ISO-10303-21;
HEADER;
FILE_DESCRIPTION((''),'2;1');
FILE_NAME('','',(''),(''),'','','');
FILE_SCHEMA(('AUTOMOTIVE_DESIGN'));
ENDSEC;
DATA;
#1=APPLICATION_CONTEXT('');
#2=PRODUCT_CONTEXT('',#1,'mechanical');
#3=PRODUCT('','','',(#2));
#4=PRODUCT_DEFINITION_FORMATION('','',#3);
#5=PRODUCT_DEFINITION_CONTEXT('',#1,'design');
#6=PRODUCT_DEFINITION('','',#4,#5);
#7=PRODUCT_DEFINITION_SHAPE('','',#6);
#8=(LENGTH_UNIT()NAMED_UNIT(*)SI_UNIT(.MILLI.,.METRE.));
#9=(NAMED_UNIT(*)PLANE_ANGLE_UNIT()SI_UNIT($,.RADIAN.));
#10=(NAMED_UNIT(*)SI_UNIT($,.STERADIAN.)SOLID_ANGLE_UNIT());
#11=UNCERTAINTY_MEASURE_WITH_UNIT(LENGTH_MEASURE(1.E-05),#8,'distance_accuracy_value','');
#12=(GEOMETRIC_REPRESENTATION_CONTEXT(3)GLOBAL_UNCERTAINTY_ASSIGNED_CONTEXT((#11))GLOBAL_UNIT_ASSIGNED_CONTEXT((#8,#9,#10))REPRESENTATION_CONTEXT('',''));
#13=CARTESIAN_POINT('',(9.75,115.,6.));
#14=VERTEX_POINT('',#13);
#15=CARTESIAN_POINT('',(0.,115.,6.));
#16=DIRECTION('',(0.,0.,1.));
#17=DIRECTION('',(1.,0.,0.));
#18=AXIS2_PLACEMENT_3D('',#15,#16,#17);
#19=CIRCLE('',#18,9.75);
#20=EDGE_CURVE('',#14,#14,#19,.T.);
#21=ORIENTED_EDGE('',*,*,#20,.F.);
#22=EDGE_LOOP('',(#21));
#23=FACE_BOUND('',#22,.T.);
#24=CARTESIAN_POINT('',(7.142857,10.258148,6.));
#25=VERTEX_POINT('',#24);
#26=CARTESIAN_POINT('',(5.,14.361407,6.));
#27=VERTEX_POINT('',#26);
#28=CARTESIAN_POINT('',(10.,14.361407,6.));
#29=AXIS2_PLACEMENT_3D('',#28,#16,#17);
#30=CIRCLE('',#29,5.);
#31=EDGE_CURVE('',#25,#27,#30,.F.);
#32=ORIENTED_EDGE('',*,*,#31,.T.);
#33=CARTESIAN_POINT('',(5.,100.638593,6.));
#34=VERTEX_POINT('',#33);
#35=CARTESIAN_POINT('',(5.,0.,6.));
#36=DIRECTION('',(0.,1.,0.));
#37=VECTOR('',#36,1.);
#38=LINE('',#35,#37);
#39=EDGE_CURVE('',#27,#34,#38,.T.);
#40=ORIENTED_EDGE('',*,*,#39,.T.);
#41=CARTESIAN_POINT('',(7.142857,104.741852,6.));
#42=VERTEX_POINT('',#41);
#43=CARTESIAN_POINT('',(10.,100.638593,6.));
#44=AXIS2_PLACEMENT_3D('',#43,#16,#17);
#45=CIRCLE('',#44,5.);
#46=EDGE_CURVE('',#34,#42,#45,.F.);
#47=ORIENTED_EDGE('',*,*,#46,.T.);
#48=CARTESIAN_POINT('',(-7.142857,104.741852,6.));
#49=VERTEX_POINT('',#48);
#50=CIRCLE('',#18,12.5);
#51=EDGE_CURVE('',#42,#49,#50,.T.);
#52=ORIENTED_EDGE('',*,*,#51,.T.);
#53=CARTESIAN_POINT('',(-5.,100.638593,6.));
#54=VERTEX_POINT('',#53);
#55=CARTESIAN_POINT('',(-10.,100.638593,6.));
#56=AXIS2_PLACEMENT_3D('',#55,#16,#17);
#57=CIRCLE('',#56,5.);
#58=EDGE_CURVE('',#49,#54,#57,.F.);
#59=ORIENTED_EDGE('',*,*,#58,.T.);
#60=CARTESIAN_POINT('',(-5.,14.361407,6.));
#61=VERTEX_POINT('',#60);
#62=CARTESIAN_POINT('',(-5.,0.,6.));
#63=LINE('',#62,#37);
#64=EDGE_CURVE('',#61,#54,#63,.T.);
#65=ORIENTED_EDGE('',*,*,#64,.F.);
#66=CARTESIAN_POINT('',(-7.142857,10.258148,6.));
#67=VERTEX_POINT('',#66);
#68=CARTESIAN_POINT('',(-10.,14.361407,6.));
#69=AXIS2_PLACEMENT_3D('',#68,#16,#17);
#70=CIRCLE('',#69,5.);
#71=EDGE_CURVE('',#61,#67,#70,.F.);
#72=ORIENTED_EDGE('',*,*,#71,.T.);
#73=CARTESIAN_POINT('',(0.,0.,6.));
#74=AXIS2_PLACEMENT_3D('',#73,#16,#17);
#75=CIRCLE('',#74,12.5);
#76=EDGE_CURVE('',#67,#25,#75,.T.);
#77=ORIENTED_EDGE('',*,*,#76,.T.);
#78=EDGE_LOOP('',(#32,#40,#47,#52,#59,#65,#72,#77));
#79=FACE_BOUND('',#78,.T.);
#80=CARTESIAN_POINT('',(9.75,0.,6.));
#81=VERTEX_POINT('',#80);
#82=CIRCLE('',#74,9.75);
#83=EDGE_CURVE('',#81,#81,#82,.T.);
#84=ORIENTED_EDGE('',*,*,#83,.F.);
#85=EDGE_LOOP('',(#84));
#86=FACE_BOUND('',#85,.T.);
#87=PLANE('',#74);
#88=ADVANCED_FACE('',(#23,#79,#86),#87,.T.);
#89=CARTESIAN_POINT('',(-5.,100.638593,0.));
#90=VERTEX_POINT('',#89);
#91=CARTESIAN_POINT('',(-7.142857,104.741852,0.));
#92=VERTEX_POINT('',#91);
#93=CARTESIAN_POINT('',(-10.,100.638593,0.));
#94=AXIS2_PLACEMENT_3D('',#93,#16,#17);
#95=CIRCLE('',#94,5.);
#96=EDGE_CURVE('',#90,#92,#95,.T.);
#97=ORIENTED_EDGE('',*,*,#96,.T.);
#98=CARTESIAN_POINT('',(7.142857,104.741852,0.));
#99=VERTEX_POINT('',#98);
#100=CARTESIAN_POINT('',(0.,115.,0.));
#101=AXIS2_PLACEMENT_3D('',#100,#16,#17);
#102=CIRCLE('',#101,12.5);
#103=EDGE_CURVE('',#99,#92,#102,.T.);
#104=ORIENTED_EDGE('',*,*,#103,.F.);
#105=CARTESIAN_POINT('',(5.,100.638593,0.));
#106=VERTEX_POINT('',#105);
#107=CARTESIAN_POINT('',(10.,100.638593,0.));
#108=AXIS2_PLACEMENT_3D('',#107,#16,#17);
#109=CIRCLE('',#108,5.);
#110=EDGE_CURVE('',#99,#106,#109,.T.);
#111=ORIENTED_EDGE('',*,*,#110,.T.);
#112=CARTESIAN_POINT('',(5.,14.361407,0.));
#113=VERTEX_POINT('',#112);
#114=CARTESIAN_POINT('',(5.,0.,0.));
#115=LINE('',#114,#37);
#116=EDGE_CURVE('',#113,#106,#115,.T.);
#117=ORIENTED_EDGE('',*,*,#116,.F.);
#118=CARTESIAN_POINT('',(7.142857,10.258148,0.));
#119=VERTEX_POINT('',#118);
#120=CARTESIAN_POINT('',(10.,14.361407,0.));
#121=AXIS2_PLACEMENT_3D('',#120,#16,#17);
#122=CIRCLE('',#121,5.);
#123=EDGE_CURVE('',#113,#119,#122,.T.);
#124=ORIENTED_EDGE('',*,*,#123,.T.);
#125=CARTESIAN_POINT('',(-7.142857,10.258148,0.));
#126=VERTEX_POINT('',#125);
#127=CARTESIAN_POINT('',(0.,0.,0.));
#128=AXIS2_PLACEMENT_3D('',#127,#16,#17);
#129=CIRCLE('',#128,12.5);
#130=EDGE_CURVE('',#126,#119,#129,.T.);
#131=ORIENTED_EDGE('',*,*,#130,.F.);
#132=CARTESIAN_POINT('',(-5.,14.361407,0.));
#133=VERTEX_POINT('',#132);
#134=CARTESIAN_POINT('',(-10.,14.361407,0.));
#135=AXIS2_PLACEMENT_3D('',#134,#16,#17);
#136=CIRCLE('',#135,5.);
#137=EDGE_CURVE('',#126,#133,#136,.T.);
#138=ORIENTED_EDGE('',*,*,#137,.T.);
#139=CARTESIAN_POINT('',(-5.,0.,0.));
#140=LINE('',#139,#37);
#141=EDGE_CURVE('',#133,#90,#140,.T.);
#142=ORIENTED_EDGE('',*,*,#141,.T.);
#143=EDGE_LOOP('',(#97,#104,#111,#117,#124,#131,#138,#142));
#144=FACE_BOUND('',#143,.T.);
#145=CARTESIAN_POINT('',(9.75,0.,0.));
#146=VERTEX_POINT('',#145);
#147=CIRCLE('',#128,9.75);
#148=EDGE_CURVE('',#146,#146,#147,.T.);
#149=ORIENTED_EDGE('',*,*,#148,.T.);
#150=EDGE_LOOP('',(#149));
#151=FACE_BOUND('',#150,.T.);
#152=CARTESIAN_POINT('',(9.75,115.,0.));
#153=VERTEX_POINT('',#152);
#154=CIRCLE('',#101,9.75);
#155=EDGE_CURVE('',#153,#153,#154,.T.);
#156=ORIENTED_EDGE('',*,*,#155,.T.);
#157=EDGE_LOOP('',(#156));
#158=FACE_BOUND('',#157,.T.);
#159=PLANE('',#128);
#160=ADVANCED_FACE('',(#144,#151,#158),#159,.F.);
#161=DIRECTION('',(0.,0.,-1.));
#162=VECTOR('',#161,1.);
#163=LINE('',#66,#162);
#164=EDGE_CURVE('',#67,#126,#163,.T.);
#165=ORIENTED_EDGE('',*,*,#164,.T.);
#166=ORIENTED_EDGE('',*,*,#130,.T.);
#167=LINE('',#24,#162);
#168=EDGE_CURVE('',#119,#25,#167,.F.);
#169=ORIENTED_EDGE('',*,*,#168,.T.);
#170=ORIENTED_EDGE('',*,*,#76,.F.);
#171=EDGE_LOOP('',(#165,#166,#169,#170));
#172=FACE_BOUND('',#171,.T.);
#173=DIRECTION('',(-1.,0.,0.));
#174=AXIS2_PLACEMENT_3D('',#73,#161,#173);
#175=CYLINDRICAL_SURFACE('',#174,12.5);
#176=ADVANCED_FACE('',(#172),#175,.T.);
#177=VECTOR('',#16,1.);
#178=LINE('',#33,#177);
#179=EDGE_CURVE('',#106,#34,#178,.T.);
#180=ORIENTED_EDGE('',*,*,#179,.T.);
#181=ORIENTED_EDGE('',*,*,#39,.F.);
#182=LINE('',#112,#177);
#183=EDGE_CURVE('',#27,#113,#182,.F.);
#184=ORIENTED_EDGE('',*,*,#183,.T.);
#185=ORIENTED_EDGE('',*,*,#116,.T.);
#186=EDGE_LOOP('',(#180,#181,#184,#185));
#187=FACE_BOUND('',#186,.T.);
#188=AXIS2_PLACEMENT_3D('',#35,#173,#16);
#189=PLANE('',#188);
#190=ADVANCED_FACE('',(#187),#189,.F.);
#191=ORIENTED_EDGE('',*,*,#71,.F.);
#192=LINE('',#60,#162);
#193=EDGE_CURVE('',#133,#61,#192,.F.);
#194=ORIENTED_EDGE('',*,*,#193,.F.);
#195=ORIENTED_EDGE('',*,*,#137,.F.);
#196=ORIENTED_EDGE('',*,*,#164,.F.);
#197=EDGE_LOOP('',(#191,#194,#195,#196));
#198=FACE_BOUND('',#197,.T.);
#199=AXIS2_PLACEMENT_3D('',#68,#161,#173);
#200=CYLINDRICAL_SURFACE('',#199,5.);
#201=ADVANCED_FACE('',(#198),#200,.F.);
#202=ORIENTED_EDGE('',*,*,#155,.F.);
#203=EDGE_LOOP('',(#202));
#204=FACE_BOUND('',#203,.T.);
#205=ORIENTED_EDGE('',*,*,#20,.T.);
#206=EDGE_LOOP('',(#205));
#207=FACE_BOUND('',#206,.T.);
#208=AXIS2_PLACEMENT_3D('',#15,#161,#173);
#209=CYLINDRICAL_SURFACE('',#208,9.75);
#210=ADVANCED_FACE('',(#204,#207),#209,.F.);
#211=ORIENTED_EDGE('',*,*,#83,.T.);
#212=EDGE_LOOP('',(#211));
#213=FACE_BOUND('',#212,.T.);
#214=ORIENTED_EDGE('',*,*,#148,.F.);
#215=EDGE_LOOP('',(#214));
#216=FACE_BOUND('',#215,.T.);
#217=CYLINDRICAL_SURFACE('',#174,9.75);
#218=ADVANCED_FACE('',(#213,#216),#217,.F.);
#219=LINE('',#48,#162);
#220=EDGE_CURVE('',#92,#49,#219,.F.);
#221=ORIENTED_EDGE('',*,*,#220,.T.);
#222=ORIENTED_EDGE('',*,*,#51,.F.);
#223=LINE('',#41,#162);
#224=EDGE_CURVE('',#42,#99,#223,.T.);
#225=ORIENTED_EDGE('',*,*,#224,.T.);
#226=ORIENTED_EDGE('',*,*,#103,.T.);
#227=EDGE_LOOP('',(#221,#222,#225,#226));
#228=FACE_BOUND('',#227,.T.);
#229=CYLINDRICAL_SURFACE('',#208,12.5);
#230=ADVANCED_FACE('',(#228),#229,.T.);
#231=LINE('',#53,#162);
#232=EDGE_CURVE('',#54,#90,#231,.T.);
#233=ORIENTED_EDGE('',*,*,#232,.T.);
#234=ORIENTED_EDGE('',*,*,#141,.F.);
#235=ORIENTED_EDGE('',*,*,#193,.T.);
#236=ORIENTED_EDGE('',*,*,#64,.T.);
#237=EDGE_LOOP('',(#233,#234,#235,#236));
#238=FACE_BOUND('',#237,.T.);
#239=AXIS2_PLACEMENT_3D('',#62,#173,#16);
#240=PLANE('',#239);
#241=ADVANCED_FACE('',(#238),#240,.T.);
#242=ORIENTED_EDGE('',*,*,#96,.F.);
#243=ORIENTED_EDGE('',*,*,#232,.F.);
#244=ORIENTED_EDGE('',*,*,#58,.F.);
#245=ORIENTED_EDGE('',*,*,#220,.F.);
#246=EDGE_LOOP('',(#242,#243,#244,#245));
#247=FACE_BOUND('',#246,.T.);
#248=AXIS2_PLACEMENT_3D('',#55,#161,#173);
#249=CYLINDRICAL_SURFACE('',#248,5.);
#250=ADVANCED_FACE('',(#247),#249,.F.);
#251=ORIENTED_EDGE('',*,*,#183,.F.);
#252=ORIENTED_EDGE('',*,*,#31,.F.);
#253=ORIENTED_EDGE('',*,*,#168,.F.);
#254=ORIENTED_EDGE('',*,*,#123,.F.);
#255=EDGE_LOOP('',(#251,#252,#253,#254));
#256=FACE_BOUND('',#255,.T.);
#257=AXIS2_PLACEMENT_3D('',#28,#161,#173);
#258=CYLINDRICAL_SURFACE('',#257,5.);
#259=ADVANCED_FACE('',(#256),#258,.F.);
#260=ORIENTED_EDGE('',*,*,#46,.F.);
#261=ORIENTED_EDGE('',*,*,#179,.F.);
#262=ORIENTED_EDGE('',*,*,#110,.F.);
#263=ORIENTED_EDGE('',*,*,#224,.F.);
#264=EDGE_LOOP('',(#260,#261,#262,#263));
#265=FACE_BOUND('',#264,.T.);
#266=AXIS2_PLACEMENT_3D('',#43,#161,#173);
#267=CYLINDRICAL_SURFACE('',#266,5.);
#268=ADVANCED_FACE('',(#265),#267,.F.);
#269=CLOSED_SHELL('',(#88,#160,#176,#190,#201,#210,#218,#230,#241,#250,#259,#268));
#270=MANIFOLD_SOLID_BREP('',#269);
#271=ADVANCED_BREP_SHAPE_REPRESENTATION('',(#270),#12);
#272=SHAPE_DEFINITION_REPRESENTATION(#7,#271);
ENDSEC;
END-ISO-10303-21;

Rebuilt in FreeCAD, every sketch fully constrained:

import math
import FreeCAD as App
import Part
import Sketcher
from FreeCAD import Vector
Q = App.Units.Quantity


def edges_at(feature, points):
    """Names of the edges that pass closest to the given points."""
    edges = feature.Shape.Edges
    near = lambda p: min(range(len(edges)), key=lambda i: edges[i].distToShape(Part.Vertex(*p))[0])
    return sorted({f"Edge{near(p) + 1}" for p in points})

doc = App.newDocument("Part")
body = doc.addObject("PartDesign::Body", "Body")

# Sketch on XY plane
sketch1 = body.newObject("Sketcher::SketchObject", "Sketch")
sketch1.AttachmentSupport = (doc.getObject("XY_Plane"), [""])
sketch1.MapMode = "FlatFace"
sketch1.addGeometry([
    Part.LineSegment(Vector(-5, 103.543561, 0), Vector(-5, 11.456439, 0)),  # 0
    Part.ArcOfCircle(Part.Circle(Vector(0, 0, 0), Vector(0, 0, 1), 12.5), math.radians(113.578178), math.radians(360)),  # 1
    Part.ArcOfCircle(Part.Circle(Vector(0, 0, 0), Vector(0, 0, 1), 12.5), math.radians(0), math.radians(66.421822)),  # 2
    Part.LineSegment(Vector(5, 11.456439, 0), Vector(5, 103.543561, 0)),  # 3
    Part.ArcOfCircle(Part.Circle(Vector(0, 115, 0), Vector(0, 0, 1), 12.5), math.radians(-66.421822), math.radians(0)),  # 4
    Part.ArcOfCircle(Part.Circle(Vector(0, 115, 0), Vector(0, 0, 1), 12.5), math.radians(0), math.radians(246.421822)),  # 5
    Part.ArcOfCircle(Part.Circle(Vector(0, 0, 0), Vector(0, 0, 1), 9.75), math.radians(59.148114), math.radians(120.851886)),  # 6
    Part.ArcOfCircle(Part.Circle(Vector(0, 0, 0), Vector(0, 0, 1), 9.75), math.radians(0), math.radians(59.148114)),  # 7
    Part.ArcOfCircle(Part.Circle(Vector(0, 0, 0), Vector(0, 0, 1), 9.75), math.radians(120.851886), math.radians(360)),  # 8
    Part.ArcOfCircle(Part.Circle(Vector(0, 115, 0), Vector(0, 0, 1), 9.75), math.radians(-120.851886), math.radians(-59.148114)),  # 9
    Part.ArcOfCircle(Part.Circle(Vector(0, 115, 0), Vector(0, 0, 1), 9.75), math.radians(0), math.radians(239.148114)),  # 10
    Part.ArcOfCircle(Part.Circle(Vector(0, 115, 0), Vector(0, 0, 1), 9.75), math.radians(-59.148114), math.radians(0)),  # 11
], False)
sketch1.addConstraint([
    Sketcher.Constraint("Coincident", 0, 2, 1, 1),
    Sketcher.Constraint("Tangent", 1, 2, 2, 1),
    Sketcher.Constraint("Coincident", 2, 2, 3, 1),
    Sketcher.Constraint("Coincident", 3, 2, 4, 1),
    Sketcher.Constraint("Tangent", 4, 2, 5, 1),
    Sketcher.Constraint("Coincident", 5, 2, 0, 1),
    Sketcher.Constraint("Tangent", 6, 1, 7, 2),
    Sketcher.Constraint("Tangent", 7, 1, 8, 2),
    Sketcher.Constraint("Tangent", 8, 1, 6, 2),
    Sketcher.Constraint("Tangent", 9, 1, 10, 2),
    Sketcher.Constraint("Tangent", 10, 1, 11, 2),
    Sketcher.Constraint("Tangent", 11, 1, 9, 2),
    Sketcher.Constraint("Vertical", 0),
    Sketcher.Constraint("Vertical", 3),
    Sketcher.Constraint("Coincident", 1, 3, -1, 1),
    Sketcher.Constraint("Coincident", 6, 3, -1, 1),
    Sketcher.Constraint("Coincident", 9, 3, 4, 3),
    Sketcher.Constraint("Equal", 1, 2),
    Sketcher.Constraint("Equal", 2, 4),
    Sketcher.Constraint("Equal", 4, 5),
    Sketcher.Constraint("Equal", 8, 9),
    Sketcher.Constraint("Symmetric", 3, 2, 5, 2, -2),
    Sketcher.Constraint("PointOnObject", 1, 2, -1),
    Sketcher.Constraint("PointOnObject", 7, 1, -1),
    Sketcher.Constraint("Horizontal", 11, 3, 4, 2),
    Sketcher.Constraint("Horizontal", 6, 1, 8, 1),
    Sketcher.Constraint("Horizontal", 4, 2, 10, 1),
    Sketcher.Constraint("Horizontal", 9, 1, 11, 1),
    Sketcher.Constraint("Vertical", 3, 2, 6, 1),
    Sketcher.Constraint("Vertical", 8, 1, 9, 1),
    Sketcher.Constraint("Radius", 1, Q("12.5 mm")),
    Sketcher.Constraint("Radius", 6, Q("9.75 mm")),
    Sketcher.Constraint("DistanceY", -1, 1, 4, 3, Q("115 mm")),
    Sketcher.Constraint("DistanceX", 0, 2, -1, 1, Q("5 mm")),
])
pad1 = body.newObject("PartDesign::Pad", "Pad")
pad1.Profile = sketch1
pad1.Length = 6
doc.recompute()

fillet = body.newObject("PartDesign::Fillet", "Fillet")
fillet.Base = (pad1, edges_at(pad1, [
    (-5, 11.456, 3),
    (-5, 103.544, 3),
    (5, 103.544, 3),
    (5, 11.456, 3),
]))
fillet.Radius = 5

doc.recompute()
